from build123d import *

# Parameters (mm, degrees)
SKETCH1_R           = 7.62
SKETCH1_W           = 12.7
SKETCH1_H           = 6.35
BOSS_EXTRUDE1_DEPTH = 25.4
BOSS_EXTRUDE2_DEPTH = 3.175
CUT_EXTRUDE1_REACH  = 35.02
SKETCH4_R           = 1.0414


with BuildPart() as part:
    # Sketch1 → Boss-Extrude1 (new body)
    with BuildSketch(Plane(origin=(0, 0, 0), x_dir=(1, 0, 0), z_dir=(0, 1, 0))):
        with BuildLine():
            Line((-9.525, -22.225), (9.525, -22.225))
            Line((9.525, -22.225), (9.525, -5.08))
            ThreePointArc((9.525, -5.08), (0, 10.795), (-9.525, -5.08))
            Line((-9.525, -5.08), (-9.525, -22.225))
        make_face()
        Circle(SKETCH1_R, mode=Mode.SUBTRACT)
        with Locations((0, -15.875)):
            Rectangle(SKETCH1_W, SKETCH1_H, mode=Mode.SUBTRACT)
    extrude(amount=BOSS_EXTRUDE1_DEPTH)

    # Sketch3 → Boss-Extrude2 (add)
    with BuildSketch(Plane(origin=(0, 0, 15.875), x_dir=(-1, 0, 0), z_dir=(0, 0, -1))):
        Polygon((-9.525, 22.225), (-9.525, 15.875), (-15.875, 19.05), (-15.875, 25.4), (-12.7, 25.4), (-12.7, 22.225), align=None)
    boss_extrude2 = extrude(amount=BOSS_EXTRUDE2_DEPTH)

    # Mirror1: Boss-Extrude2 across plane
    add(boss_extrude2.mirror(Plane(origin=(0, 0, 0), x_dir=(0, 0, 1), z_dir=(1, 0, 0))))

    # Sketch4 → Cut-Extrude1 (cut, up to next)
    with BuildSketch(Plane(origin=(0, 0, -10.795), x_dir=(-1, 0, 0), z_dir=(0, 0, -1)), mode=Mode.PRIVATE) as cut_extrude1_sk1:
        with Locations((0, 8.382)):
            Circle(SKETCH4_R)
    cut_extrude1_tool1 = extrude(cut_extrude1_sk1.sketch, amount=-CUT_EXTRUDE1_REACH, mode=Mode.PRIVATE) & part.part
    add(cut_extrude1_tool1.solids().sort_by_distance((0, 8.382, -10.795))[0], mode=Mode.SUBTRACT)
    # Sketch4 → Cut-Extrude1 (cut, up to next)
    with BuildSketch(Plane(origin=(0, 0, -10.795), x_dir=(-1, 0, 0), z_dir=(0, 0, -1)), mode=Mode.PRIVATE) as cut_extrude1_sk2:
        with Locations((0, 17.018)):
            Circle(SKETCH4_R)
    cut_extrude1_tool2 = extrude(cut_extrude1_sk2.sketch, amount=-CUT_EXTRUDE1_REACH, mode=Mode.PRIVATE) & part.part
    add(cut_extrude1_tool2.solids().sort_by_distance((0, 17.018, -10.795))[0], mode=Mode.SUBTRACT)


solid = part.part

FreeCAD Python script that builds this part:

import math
import FreeCAD as App
import Part
import Sketcher
Q = App.Units.Quantity


def add_polygon(sketch, points):
    """Adds a closed chain of lines whose ends are joined by coincident constraints."""
    first, n = sketch.GeometryCount, len(points)
    for a, b in zip(points, points[1:] + points[:1]):
        sketch.addGeometry(Part.LineSegment(App.Vector(*a, 0), App.Vector(*b, 0)), False)
    for i in range(n):
        sketch.addConstraint(Sketcher.Constraint("Coincident", first + i, 2, first + (i + 1) % n, 1))

doc = App.newDocument("Part")
body = doc.addObject("PartDesign::Body", "Body")

sketch1 = body.newObject("Sketcher::SketchObject", "Sketch")
sketch1.AttachmentSupport = (doc.getObject("XZ_Plane"), [""])
sketch1.MapMode = "FlatFace"
sketch1.addGeometry(Part.LineSegment(App.Vector(-9.525, 22.225, 0), App.Vector(9.525, 22.225, 0)), False)
sketch1.addGeometry(Part.LineSegment(App.Vector(9.525, 22.225, 0), App.Vector(9.525, 5.08, 0)), False)
sketch1.addGeometry(Part.ArcOfCircle(Part.Circle(App.Vector(0, 0, 0), App.Vector(0, 0, 1), 10.795), math.radians(151.927513), math.radians(388.072487)), False)
sketch1.addGeometry(Part.LineSegment(App.Vector(-9.525, 5.08, 0), App.Vector(-9.525, 22.225, 0)), False)
add_polygon(sketch1, [(6.35, 19.05), (-6.35, 19.05), (-6.35, 12.7), (6.35, 12.7)])
sketch1.addGeometry(Part.Circle(App.Vector(0, 0, 0), App.Vector(0, 0, 1), 7.62), False)
sketch1.addConstraint([
    Sketcher.Constraint("Coincident", 0, 2, 1, 1),
    Sketcher.Constraint("Coincident", 1, 2, 2, 2),
    Sketcher.Constraint("Coincident", 2, 1, 3, 1),
    Sketcher.Constraint("Coincident", 3, 2, 0, 1),
    Sketcher.Constraint("Horizontal", 0),
    Sketcher.Constraint("Vertical", 1),
    Sketcher.Constraint("Vertical", 3),
    Sketcher.Constraint("Horizontal", 4),
    Sketcher.Constraint("Vertical", 5),
    Sketcher.Constraint("Horizontal", 6),
    Sketcher.Constraint("Vertical", 7),
    Sketcher.Constraint("Coincident", 2, 3, -1, 1),
    Sketcher.Constraint("Coincident", 8, 3, -1, 1),
    Sketcher.Constraint("Horizontal", 1, 2, 2, 1),
    Sketcher.Constraint("Diameter", 8, Q("0.6 in")),
    Sketcher.Constraint("DistanceX", 4, 2, 4, 1, Q("0.5 in")),
    Sketcher.Constraint("Radius", 2, Q("0.425 in")),
    Sketcher.Constraint("DistanceX", 0, 1, 0, 2, Q("0.75 in")),
    Sketcher.Constraint("DistanceY", 5, 2, 5, 1, Q("0.25 in")),
    Sketcher.Constraint("DistanceY", -1, 1, 5, 2, Q("0.5 in")),
    Sketcher.Constraint("DistanceY", 1, 2, 1, 1, Q("0.675 in")),
    Sketcher.Constraint("DistanceX", 4, 2, -1, 1, Q("0.25 in")),
])
pad1 = body.newObject("PartDesign::Pad", "Pad")
pad1.Profile = sketch1
pad1.Length = Q("1 in")
pad1.Reversed = True

sketch2 = body.newObject("Sketcher::SketchObject", "Sketch001")
sketch2.AttachmentSupport = (doc.getObject("XY_Plane"), [""])
sketch2.MapMode = "FlatFace"
sketch2.AttachmentOffset = App.Placement(App.Vector(0, 0, 0.625 * 25.4), App.Rotation())
add_polygon(sketch2, [(9.525, 15.875), (9.525, 22.225), (12.7, 22.225), (12.7, 25.4), (15.875, 25.4), (15.875, 19.05)])
sketch2.addConstraint([
    Sketcher.Constraint("Vertical", 0),
    Sketcher.Constraint("Horizontal", 1),
    Sketcher.Constraint("Vertical", 2),
    Sketcher.Constraint("Horizontal", 3),
    Sketcher.Constraint("Vertical", 4),
    Sketcher.Constraint("Equal", 1, 3),
    Sketcher.Constraint("Equal", 3, 2),
    Sketcher.Constraint("Equal", 0, 4),
    Sketcher.Constraint("DistanceY", -1, 1, 2, 2, Q("1 in")),
    Sketcher.Constraint("DistanceY", 0, 1, 0, 2, Q("0.25 in")),
    Sketcher.Constraint("DistanceX", -1, 1, 1, 2, Q("0.5 in")),
    Sketcher.Constraint("DistanceX", 1, 1, 1, 2, Q("0.125 in")),
])
pad2 = body.newObject("PartDesign::Pad", "Pad001")
pad2.Profile = sketch2
pad2.Length = Q("0.125 in")
pad2.Reversed = True
doc.recompute()

mirrored = body.newObject("PartDesign::Mirrored", "Mirrored")
mirrored.Originals = [pad2]
mirrored.MirrorPlane = (doc.getObject("YZ_Plane"), [""])
body.Tip = mirrored

sketch3 = body.newObject("Sketcher::SketchObject", "Sketch002")
sketch3.AttachmentSupport = (doc.getObject("XY_Plane"), [""])
sketch3.MapMode = "FlatFace"
sketch3.AttachmentOffset = App.Placement(App.Vector(0, 0, -0.425 * 25.4), App.Rotation())
sketch3.addGeometry(Part.Circle(App.Vector(0, 8.382, 0), App.Vector(0, 0, 1), 1.0414), False)
sketch3.addConstraint([
    Sketcher.Constraint("PointOnObject", 0, 3, -2),
    Sketcher.Constraint("Diameter", 0, Q("0.082 in")),
    Sketcher.Constraint("DistanceY", -1, 1, 0, 3, Q("0.33 in")),
])
pocket1 = body.newObject("PartDesign::Pocket", "Pocket")
pocket1.Profile = sketch3
pocket1.Length = 3.246498
pocket1.Reversed = True

sketch4 = body.newObject("Sketcher::SketchObject", "Sketch003")
sketch4.AttachmentSupport = (doc.getObject("XY_Plane"), [""])
sketch4.MapMode = "FlatFace"
sketch4.AttachmentOffset = App.Placement(App.Vector(0, 0, -0.425 * 25.4), App.Rotation())
sketch4.addGeometry(Part.Circle(App.Vector(0, 17.018, 0), App.Vector(0, 0, 1), 1.0414), False)
sketch4.addConstraint([
    Sketcher.Constraint("PointOnObject", 0, 3, -2),
    Sketcher.Constraint("Diameter", 0, Q("0.082 in")),
    Sketcher.Constraint("DistanceY", -1, 1, 0, 3, Q("0.67 in")),
])
pocket2 = body.newObject("PartDesign::Pocket", "Pocket001")
pocket2.Profile = sketch4
pocket2.Length = 3.246498
pocket2.Reversed = True

doc.recompute()
